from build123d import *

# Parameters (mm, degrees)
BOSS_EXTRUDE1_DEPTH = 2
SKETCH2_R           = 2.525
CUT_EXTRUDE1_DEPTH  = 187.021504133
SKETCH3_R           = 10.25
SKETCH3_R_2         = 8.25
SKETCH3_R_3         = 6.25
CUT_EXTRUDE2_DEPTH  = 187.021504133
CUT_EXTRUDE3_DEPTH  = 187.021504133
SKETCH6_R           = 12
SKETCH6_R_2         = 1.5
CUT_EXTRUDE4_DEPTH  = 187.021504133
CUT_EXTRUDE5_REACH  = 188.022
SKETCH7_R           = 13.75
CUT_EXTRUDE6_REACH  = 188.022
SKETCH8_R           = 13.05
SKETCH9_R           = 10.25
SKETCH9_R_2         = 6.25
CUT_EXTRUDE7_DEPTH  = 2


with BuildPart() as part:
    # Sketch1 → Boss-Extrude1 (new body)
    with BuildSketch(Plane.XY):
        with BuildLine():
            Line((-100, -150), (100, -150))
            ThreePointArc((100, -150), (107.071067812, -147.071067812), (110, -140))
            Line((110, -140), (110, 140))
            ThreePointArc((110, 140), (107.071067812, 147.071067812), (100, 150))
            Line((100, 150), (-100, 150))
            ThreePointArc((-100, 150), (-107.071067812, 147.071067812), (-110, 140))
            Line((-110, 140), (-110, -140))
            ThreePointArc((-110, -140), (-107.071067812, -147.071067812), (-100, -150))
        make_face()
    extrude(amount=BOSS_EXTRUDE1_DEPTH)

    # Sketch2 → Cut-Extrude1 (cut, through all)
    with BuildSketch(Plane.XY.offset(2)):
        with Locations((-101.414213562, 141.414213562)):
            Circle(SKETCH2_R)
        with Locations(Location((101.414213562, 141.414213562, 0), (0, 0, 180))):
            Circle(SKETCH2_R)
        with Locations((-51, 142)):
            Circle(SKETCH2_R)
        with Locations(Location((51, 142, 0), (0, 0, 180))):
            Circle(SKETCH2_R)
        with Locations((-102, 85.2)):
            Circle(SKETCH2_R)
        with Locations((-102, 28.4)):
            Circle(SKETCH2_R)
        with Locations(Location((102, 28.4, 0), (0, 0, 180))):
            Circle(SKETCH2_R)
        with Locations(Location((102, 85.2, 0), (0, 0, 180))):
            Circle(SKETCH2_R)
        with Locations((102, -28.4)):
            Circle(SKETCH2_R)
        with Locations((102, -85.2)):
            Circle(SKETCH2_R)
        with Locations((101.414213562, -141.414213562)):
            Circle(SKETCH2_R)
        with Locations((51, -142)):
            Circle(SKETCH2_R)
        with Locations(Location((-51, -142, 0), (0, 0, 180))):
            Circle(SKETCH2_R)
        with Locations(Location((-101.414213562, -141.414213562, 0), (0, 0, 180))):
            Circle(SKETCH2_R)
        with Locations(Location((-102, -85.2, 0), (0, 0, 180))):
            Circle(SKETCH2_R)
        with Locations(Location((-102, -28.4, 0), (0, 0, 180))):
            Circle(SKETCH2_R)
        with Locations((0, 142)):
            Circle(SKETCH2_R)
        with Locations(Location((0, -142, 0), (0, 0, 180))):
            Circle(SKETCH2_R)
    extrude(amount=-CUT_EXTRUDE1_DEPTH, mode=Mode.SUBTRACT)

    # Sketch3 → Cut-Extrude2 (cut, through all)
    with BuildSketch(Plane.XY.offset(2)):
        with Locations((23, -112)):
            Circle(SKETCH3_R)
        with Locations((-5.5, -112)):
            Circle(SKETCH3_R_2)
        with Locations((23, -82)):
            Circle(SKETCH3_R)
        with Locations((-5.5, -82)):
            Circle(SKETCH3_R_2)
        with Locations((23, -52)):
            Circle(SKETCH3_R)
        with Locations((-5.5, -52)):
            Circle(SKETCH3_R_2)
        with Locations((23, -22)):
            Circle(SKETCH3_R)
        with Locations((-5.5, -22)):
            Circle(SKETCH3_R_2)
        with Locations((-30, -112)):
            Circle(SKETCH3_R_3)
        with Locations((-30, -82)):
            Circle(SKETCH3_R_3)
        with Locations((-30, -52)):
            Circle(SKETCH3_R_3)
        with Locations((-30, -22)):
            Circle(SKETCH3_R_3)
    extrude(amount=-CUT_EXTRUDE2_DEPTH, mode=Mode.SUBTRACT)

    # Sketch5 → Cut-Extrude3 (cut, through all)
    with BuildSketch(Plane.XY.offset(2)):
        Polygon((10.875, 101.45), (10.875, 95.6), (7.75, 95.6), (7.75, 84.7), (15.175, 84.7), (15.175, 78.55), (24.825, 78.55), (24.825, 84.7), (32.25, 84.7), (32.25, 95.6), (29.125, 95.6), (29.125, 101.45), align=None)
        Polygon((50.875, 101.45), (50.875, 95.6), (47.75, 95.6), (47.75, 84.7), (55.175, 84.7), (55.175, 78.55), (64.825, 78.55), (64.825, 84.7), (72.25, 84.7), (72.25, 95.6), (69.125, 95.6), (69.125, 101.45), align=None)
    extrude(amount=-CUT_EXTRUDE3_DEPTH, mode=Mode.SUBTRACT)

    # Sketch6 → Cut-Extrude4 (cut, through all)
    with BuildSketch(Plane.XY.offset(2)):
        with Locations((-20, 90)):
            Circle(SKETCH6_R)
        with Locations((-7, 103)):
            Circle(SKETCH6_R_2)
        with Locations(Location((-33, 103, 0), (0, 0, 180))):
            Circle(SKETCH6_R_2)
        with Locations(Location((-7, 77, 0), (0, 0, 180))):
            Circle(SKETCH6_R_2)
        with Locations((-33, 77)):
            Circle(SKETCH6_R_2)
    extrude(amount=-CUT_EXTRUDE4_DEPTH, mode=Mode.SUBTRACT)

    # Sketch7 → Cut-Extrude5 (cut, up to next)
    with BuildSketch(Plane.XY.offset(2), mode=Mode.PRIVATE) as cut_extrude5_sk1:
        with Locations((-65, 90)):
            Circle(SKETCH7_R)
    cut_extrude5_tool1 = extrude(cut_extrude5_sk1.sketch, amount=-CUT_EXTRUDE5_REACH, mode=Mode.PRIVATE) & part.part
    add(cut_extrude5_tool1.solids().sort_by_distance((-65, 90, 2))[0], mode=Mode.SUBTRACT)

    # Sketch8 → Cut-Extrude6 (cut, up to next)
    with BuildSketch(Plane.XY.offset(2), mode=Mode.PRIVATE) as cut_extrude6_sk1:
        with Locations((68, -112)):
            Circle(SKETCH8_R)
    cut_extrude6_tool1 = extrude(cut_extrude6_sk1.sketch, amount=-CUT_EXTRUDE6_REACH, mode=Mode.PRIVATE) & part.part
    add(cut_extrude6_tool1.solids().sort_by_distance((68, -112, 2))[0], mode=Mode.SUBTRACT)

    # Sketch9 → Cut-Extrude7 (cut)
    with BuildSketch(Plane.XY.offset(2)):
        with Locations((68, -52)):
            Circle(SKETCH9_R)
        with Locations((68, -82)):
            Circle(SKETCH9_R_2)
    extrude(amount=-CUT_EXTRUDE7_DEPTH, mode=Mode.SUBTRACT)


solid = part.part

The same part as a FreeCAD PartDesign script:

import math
import FreeCAD as App
import Part
import Sketcher
Q = App.Units.Quantity


def add_polygon(sketch, points):
    """Adds a closed chain of lines whose ends are joined by coincident constraints."""
    first, n = sketch.GeometryCount, len(points)
    for a, b in zip(points, points[1:] + points[:1]):
        sketch.addGeometry(Part.LineSegment(App.Vector(*a, 0), App.Vector(*b, 0)), False)
    for i in range(n):
        sketch.addConstraint(Sketcher.Constraint("Coincident", first + i, 2, first + (i + 1) % n, 1))

doc = App.newDocument("Part")
body = doc.addObject("PartDesign::Body", "Body")

# Sketch on XY plane
sketch1 = body.newObject("Sketcher::SketchObject", "Sketch")
sketch1.AttachmentSupport = (doc.getObject("XY_Plane"), [""])
sketch1.MapMode = "FlatFace"
sketch1.addGeometry(Part.LineSegment(App.Vector(-100, -150, 0), App.Vector(100, -150, 0)), False)
sketch1.addGeometry(Part.ArcOfCircle(Part.Circle(App.Vector(100, -140, 0), App.Vector(0, 0, 1), 10), math.radians(-90), math.radians(0)), False)
sketch1.addGeometry(Part.LineSegment(App.Vector(110, -140, 0), App.Vector(110, 140, 0)), False)
sketch1.addGeometry(Part.ArcOfCircle(Part.Circle(App.Vector(100, 140, 0), App.Vector(0, 0, 1), 10), math.radians(0), math.radians(90)), False)
sketch1.addGeometry(Part.LineSegment(App.Vector(100, 150, 0), App.Vector(-100, 150, 0)), False)
sketch1.addGeometry(Part.ArcOfCircle(Part.Circle(App.Vector(-100, 140, 0), App.Vector(0, 0, 1), 10), math.radians(90), math.radians(180)), False)
sketch1.addGeometry(Part.LineSegment(App.Vector(-110, 140, 0), App.Vector(-110, -140, 0)), False)
sketch1.addGeometry(Part.ArcOfCircle(Part.Circle(App.Vector(-100, -140, 0), App.Vector(0, 0, 1), 10), math.radians(180), math.radians(270)), False)
sketch1.addConstraint(Sketcher.Constraint("Tangent", 0, 2, 1, 1))
sketch1.addConstraint(Sketcher.Constraint("Tangent", 1, 2, 2, 1))
sketch1.addConstraint(Sketcher.Constraint("Tangent", 2, 2, 3, 1))
sketch1.addConstraint(Sketcher.Constraint("Tangent", 3, 2, 4, 1))
sketch1.addConstraint(Sketcher.Constraint("Tangent", 4, 2, 5, 1))
sketch1.addConstraint(Sketcher.Constraint("Tangent", 5, 2, 6, 1))
sketch1.addConstraint(Sketcher.Constraint("Tangent", 6, 2, 7, 1))
sketch1.addConstraint(Sketcher.Constraint("Tangent", 7, 2, 0, 1))
sketch1.addConstraint(Sketcher.Constraint("Horizontal", 0))
sketch1.addConstraint(Sketcher.Constraint("Vertical", 2))
sketch1.addConstraint(Sketcher.Constraint("Horizontal", 4))
sketch1.addConstraint(Sketcher.Constraint("Vertical", 6))
sketch1.addConstraint(Sketcher.Constraint("Equal", 1, 3))
sketch1.addConstraint(Sketcher.Constraint("Equal", 3, 5))
sketch1.addConstraint(Sketcher.Constraint("Equal", 5, 7))
sketch1.addConstraint(Sketcher.Constraint("Symmetric", 1, 3, 5, 3, -1, 1))
sketch1.addConstraint(Sketcher.Constraint("Radius", 1, Q("10 mm")))
sketch1.addConstraint(Sketcher.Constraint("DistanceX", 0, 1, 0, 2, Q("200 mm")))
sketch1.addConstraint(Sketcher.Constraint("DistanceY", 2, 1, 2, 2, Q("280 mm")))
pad1 = body.newObject("PartDesign::Pad", "Pad")
pad1.Profile = sketch1
pad1.Length = 2

# Sketch on XY plane
sketch2 = body.newObject("Sketcher::SketchObject", "Sketch001")
sketch2.AttachmentSupport = (doc.getObject("XY_Plane"), [""])
sketch2.MapMode = "FlatFace"
sketch2.AttachmentOffset = App.Placement(App.Vector(0, 0, 2), App.Rotation())
sketch2.addGeometry(Part.Circle(App.Vector(-101.4, 141.4, 0), App.Vector(0, 0, 1), 2.5), False)
sketch2.addGeometry(Part.Circle(App.Vector(101.4, 141.4, 0), App.Vector(0, 0, 1), 2.5), False)
sketch2.addGeometry(Part.Circle(App.Vector(-51, 142, 0), App.Vector(0, 0, 1), 2.5), False)
sketch2.addGeometry(Part.Circle(App.Vector(51, 142, 0), App.Vector(0, 0, 1), 2.5), False)
sketch2.addGeometry(Part.Circle(App.Vector(-102, 85.2, 0), App.Vector(0, 0, 1), 2.5), False)
sketch2.addGeometry(Part.Circle(App.Vector(-102, 28.4, 0), App.Vector(0, 0, 1), 2.5), False)
sketch2.addGeometry(Part.Circle(App.Vector(102, 28.4, 0), App.Vector(0, 0, 1), 2.5), False)
sketch2.addGeometry(Part.Circle(App.Vector(102, 85.2, 0), App.Vector(0, 0, 1), 2.5), False)
sketch2.addGeometry(Part.Circle(App.Vector(102, -28.4, 0), App.Vector(0, 0, 1), 2.5), False)
sketch2.addGeometry(Part.Circle(App.Vector(102, -85.2, 0), App.Vector(0, 0, 1), 2.5), False)
sketch2.addGeometry(Part.Circle(App.Vector(101.4, -141.4, 0), App.Vector(0, 0, 1), 2.5), False)
sketch2.addGeometry(Part.Circle(App.Vector(51, -142, 0), App.Vector(0, 0, 1), 2.5), False)
sketch2.addGeometry(Part.Circle(App.Vector(-51, -142, 0), App.Vector(0, 0, 1), 2.5), False)
sketch2.addGeometry(Part.Circle(App.Vector(-101.4, -141.4, 0), App.Vector(0, 0, 1), 2.5), False)
sketch2.addGeometry(Part.Circle(App.Vector(-102, -85.2, 0), App.Vector(0, 0, 1), 2.5), False)
sketch2.addGeometry(Part.Circle(App.Vector(-102, -28.4, 0), App.Vector(0, 0, 1), 2.5), False)
sketch2.addGeometry(Part.Circle(App.Vector(0, 142, 0), App.Vector(0, 0, 1), 2.5), False)
sketch2.addGeometry(Part.Circle(App.Vector(0, -142, 0), App.Vector(0, 0, 1), 2.5), False)
sketch2.addConstraint(Sketcher.Constraint("Equal", 0, 1))
sketch2.addConstraint(Sketcher.Constraint("Equal", 1, 2))
sketch2.addConstraint(Sketcher.Constraint("Equal", 2, 3))
sketch2.addConstraint(Sketcher.Constraint("Equal", 3, 4))
sketch2.addConstraint(Sketcher.Constraint("Equal", 4, 5))
sketch2.addConstraint(Sketcher.Constraint("Equal", 5, 6))
sketch2.addConstraint(Sketcher.Constraint("Equal", 6, 7))
sketch2.addConstraint(Sketcher.Constraint("Equal", 7, 8))
sketch2.addConstraint(Sketcher.Constraint("Equal", 8, 9))
sketch2.addConstraint(Sketcher.Constraint("Equal", 9, 10))
sketch2.addConstraint(Sketcher.Constraint("Equal", 10, 11))
sketch2.addConstraint(Sketcher.Constraint("Equal", 11, 12))
sketch2.addConstraint(Sketcher.Constraint("Equal", 12, 13))
sketch2.addConstraint(Sketcher.Constraint("Equal", 13, 14))
sketch2.addConstraint(Sketcher.Constraint("Equal", 14, 15))
sketch2.addConstraint(Sketcher.Constraint("Equal", 15, 16))
sketch2.addConstraint(Sketcher.Constraint("Equal", 16, 17))
sketch2.addConstraint(Sketcher.Constraint("Symmetric", 5, 3, 8, 3, -1, 1))
sketch2.addConstraint(Sketcher.Constraint("Symmetric", 4, 3, 9, 3, -1, 1))
sketch2.addConstraint(Sketcher.Constraint("Symmetric", 0, 3, 10, 3, -1, 1))
sketch2.addConstraint(Sketcher.Constraint("Symmetric", 2, 3, 11, 3, -1, 1))
sketch2.addConstraint(Sketcher.Constraint("Symmetric", 3, 3, 12, 3, -1, 1))
sketch2.addConstraint(Sketcher.Constraint("Symmetric", 1, 3, 13, 3, -1, 1))
sketch2.addConstraint(Sketcher.Constraint("Symmetric", 7, 3, 14, 3, -1, 1))
sketch2.addConstraint(Sketcher.Constraint("Symmetric", 6, 3, 15, 3, -1, 1))
sketch2.addConstraint(Sketcher.Constraint("Symmetric", 16, 3, 17, 3, -1, 1))
sketch2.addConstraint(Sketcher.Constraint("Symmetric", 0, 3, 1, 3, -2))
sketch2.addConstraint(Sketcher.Constraint("Symmetric", 2, 3, 3, 3, -2))
sketch2.addConstraint(Sketcher.Constraint("Symmetric", 5, 3, 6, 3, -2))
sketch2.addConstraint(Sketcher.Constraint("Symmetric", 4, 3, 7, 3, -2))
sketch2.addConstraint(Sketcher.Constraint("PointOnObject", 16, 3, -2))
sketch2.addConstraint(Sketcher.Constraint("Horizontal", 3, 3, 16, 3))
sketch2.addConstraint(Sketcher.Constraint("Vertical", 4, 3, 5, 3))
sketch2.addConstraint(Sketcher.Constraint("Diameter", 0, Q("5.05 mm")))
sketch2.addConstraint(Sketcher.Constraint("DistanceX", 2, 3, -1, 1, Q("51 mm")))
sketch2.addConstraint(Sketcher.Constraint("DistanceY", -1, 1, 2, 3, Q("142 mm")))
sketch2.addConstraint(Sketcher.Constraint("DistanceX", 4, 3, -1, 1, Q("102 mm")))
sketch2.addConstraint(Sketcher.Constraint("DistanceY", -1, 1, 4, 3, Q("85.2 mm")))
sketch2.addConstraint(Sketcher.Constraint("DistanceY", -1, 1, 5, 3, Q("28.4 mm")))
sketch2.addConstraint(Sketcher.Constraint("DistanceX", 0, 3, -1, 1, Q("101.414214 mm")))
sketch2.addConstraint(Sketcher.Constraint("DistanceY", -1, 1, 0, 3, Q("141.414214 mm")))
pocket1 = body.newObject("PartDesign::Pocket", "Pocket")
pocket1.Profile = sketch2
pocket1.Type = "ThroughAll"

# Sketch on XY plane
sketch3 = body.newObject("Sketcher::SketchObject", "Sketch002")
sketch3.AttachmentSupport = (doc.getObject("XY_Plane"), [""])
sketch3.MapMode = "FlatFace"
sketch3.AttachmentOffset = App.Placement(App.Vector(0, 0, 2), App.Rotation())
sketch3.addGeometry(Part.Circle(App.Vector(23, -112, 0), App.Vector(0, 0, 1), 10), False)
sketch3.addGeometry(Part.Circle(App.Vector(-6, -112, 0), App.Vector(0, 0, 1), 8), False)
sketch3.addGeometry(Part.Circle(App.Vector(23, -82, 0), App.Vector(0, 0, 1), 10), False)
sketch3.addGeometry(Part.Circle(App.Vector(-6, -82, 0), App.Vector(0, 0, 1), 8), False)
sketch3.addGeometry(Part.Circle(App.Vector(23, -52, 0), App.Vector(0, 0, 1), 10), False)
sketch3.addGeometry(Part.Circle(App.Vector(-6, -52, 0), App.Vector(0, 0, 1), 8), False)
sketch3.addGeometry(Part.Circle(App.Vector(23, -22, 0), App.Vector(0, 0, 1), 10), False)
sketch3.addGeometry(Part.Circle(App.Vector(-6, -22, 0), App.Vector(0, 0, 1), 8), False)
sketch3.addGeometry(Part.Circle(App.Vector(-30, -112, 0), App.Vector(0, 0, 1), 6), False)
sketch3.addGeometry(Part.Circle(App.Vector(-30, -82, 0), App.Vector(0, 0, 1), 6), False)
sketch3.addGeometry(Part.Circle(App.Vector(-30, -52, 0), App.Vector(0, 0, 1), 6), False)
sketch3.addGeometry(Part.Circle(App.Vector(-30, -22, 0), App.Vector(0, 0, 1), 6), False)
sketch3.addConstraint(Sketcher.Constraint("Equal", 0, 2))
sketch3.addConstraint(Sketcher.Constraint("Equal", 1, 3))
sketch3.addConstraint(Sketcher.Constraint("Equal", 2, 4))
sketch3.addConstraint(Sketcher.Constraint("Equal", 3, 5))
sketch3.addConstraint(Sketcher.Constraint("Equal", 4, 6))
sketch3.addConstraint(Sketcher.Constraint("Equal", 5, 7))
sketch3.addConstraint(Sketcher.Constraint("Equal", 8, 9))
sketch3.addConstraint(Sketcher.Constraint("Equal", 9, 10))
sketch3.addConstraint(Sketcher.Constraint("Equal", 10, 11))
sketch3.addConstraint(Sketcher.Constraint("Horizontal", 0, 3, 1, 3))
sketch3.addConstraint(Sketcher.Constraint("Horizontal", 2, 3, 3, 3))
sketch3.addConstraint(Sketcher.Constraint("Horizontal", 4, 3, 5, 3))
sketch3.addConstraint(Sketcher.Constraint("Horizontal", 6, 3, 7, 3))
sketch3.addConstraint(Sketcher.Constraint("Horizontal", 1, 3, 8, 3))
sketch3.addConstraint(Sketcher.Constraint("Horizontal", 3, 3, 9, 3))
sketch3.addConstraint(Sketcher.Constraint("Horizontal", 5, 3, 10, 3))
sketch3.addConstraint(Sketcher.Constraint("Horizontal", 7, 3, 11, 3))
sketch3.addConstraint(Sketcher.Constraint("Vertical", 0, 3, 2, 3))
sketch3.addConstraint(Sketcher.Constraint("Vertical", 1, 3, 3, 3))
sketch3.addConstraint(Sketcher.Constraint("Vertical", 2, 3, 4, 3))
sketch3.addConstraint(Sketcher.Constraint("Vertical", 3, 3, 5, 3))
sketch3.addConstraint(Sketcher.Constraint("Vertical", 4, 3, 6, 3))
sketch3.addConstraint(Sketcher.Constraint("Vertical", 5, 3, 7, 3))
sketch3.addConstraint(Sketcher.Constraint("Vertical", 8, 3, 9, 3))
sketch3.addConstraint(Sketcher.Constraint("Vertical", 9, 3, 10, 3))
sketch3.addConstraint(Sketcher.Constraint("Vertical", 10, 3, 11, 3))
sketch3.addConstraint(Sketcher.Constraint("Diameter", 0, Q("20.5 mm")))
sketch3.addConstraint(Sketcher.Constraint("Diameter", 1, Q("16.5 mm")))
sketch3.addConstraint(Sketcher.Constraint("Diameter", 8, Q("12.5 mm")))
sketch3.addConstraint(Sketcher.Constraint("DistanceX", -1, 1, 0, 3, Q("23 mm")))
sketch3.addConstraint(Sketcher.Constraint("DistanceY", 0, 3, -1, 1, Q("112 mm")))
sketch3.addConstraint(Sketcher.Constraint("DistanceY", 2, 3, -1, 1, Q("82 mm")))
sketch3.addConstraint(Sketcher.Constraint("DistanceY", 4, 3, -1, 1, Q("52 mm")))
sketch3.addConstraint(Sketcher.Constraint("DistanceY", 6, 3, -1, 1, Q("22 mm")))
sketch3.addConstraint(Sketcher.Constraint("DistanceX", 8, 3, -1, 1, Q("30 mm")))
sketch3.addConstraint(Sketcher.Constraint("DistanceX", 1, 3, -1, 1, Q("5.5 mm")))
pocket2 = body.newObject("PartDesign::Pocket", "Pocket001")
pocket2.Profile = sketch3
pocket2.Type = "ThroughAll"

# Sketch on XY plane
sketch4 = body.newObject("Sketcher::SketchObject", "Sketch003")
sketch4.AttachmentSupport = (doc.getObject("XY_Plane"), [""])
sketch4.MapMode = "FlatFace"
sketch4.AttachmentOffset = App.Placement(App.Vector(0, 0, 2), App.Rotation())
add_polygon(sketch4, [(10.9, 101.5), (10.9, 95.6), (7.8, 95.6), (7.8, 84.7), (15.2, 84.7), (15.2, 78.5), (24.8, 78.5), (24.8, 84.7), (32.2, 84.7), (32.2, 95.6), (29.1, 95.6), (29.1, 101.5)])  # lines 0-11
add_polygon(sketch4, [(50.9, 101.5), (50.9, 95.6), (47.8, 95.6), (47.8, 84.7), (55.2, 84.7), (55.2, 78.5), (64.8, 78.5), (64.8, 84.7), (72.2, 84.7), (72.2, 95.6), (69.1, 95.6), (69.1, 101.5)])  # lines 12-23
sketch4.addConstraint(Sketcher.Constraint("Vertical", 0))
sketch4.addConstraint(Sketcher.Constraint("Horizontal", 1))
sketch4.addConstraint(Sketcher.Constraint("Vertical", 2))
sketch4.addConstraint(Sketcher.Constraint("Horizontal", 3))
sketch4.addConstraint(Sketcher.Constraint("Vertical", 4))
sketch4.addConstraint(Sketcher.Constraint("Horizontal", 5))
sketch4.addConstraint(Sketcher.Constraint("Vertical", 6))
sketch4.addConstraint(Sketcher.Constraint("Horizontal", 7))
sketch4.addConstraint(Sketcher.Constraint("Vertical", 8))
sketch4.addConstraint(Sketcher.Constraint("Horizontal", 9))
sketch4.addConstraint(Sketcher.Constraint("Vertical", 10))
sketch4.addConstraint(Sketcher.Constraint("Horizontal", 11))
sketch4.addConstraint(Sketcher.Constraint("Vertical", 12))
sketch4.addConstraint(Sketcher.Constraint("Horizontal", 13))
sketch4.addConstraint(Sketcher.Constraint("Vertical", 14))
sketch4.addConstraint(Sketcher.Constraint("Horizontal", 15))
sketch4.addConstraint(Sketcher.Constraint("Vertical", 16))
sketch4.addConstraint(Sketcher.Constraint("Horizontal", 17))
sketch4.addConstraint(Sketcher.Constraint("Vertical", 18))
sketch4.addConstraint(Sketcher.Constraint("Horizontal", 19))
sketch4.addConstraint(Sketcher.Constraint("Vertical", 20))
sketch4.addConstraint(Sketcher.Constraint("Horizontal", 21))
sketch4.addConstraint(Sketcher.Constraint("Vertical", 22))
sketch4.addConstraint(Sketcher.Constraint("Horizontal", 23))
sketch4.addConstraint(Sketcher.Constraint("Horizontal", 3, 2, 6, 2))
sketch4.addConstraint(Sketcher.Constraint("Horizontal", 1, 2, 8, 2))
sketch4.addConstraint(Sketcher.Constraint("Horizontal", 9, 2, 12, 2))
sketch4.addConstraint(Sketcher.Constraint("Horizontal", 7, 2, 14, 2))
sketch4.addConstraint(Sketcher.Constraint("Horizontal", 5, 2, 16, 2))
sketch4.addConstraint(Sketcher.Constraint("Horizontal", 15, 2, 18, 2))
sketch4.addConstraint(Sketcher.Constraint("Horizontal", 13, 2, 20, 2))
sketch4.addConstraint(Sketcher.Constraint("Horizontal", 11, 2, 22, 2))
sketch4.addConstraint(Sketcher.Constraint("Equal", 3, 7))
sketch4.addConstraint(Sketcher.Constraint("Equal", 1, 9))
sketch4.addConstraint(Sketcher.Constraint("Equal", 9, 13))
sketch4.addConstraint(Sketcher.Constraint("Equal", 7, 15))
sketch4.addConstraint(Sketcher.Constraint("Equal", 5, 17))
sketch4.addConstraint(Sketcher.Constraint("Equal", 15, 19))
sketch4.addConstraint(Sketcher.Constraint("Equal", 13, 21))
sketch4.addConstraint(Sketcher.Constraint("DistanceY", 2, 2, 2, 1, Q("10.9 mm")))
sketch4.addConstraint(Sketcher.Constraint("DistanceX", 5, 1, 5, 2, Q("9.65 mm")))
sketch4.addConstraint(Sketcher.Constraint("DistanceX", 11, 2, 11, 1, Q("18.25 mm")))
sketch4.addConstraint(Sketcher.Constraint("DistanceY", 0, 2, 0, 1, Q("5.85 mm")))
sketch4.addConstraint(Sketcher.Constraint("DistanceY", 4, 2, 4, 1, Q("6.15 mm")))
sketch4.addConstraint(Sketcher.Constraint("DistanceY", -1, 1, 0, 2, Q("95.6 mm")))
sketch4.addConstraint(Sketcher.Constraint("DistanceX", 8, 2, 13, 2, Q("15.5 mm")))
sketch4.addConstraint(Sketcher.Constraint("DistanceX", 1, 2, 1, 1, Q("3.125 mm")))
sketch4.addConstraint(Sketcher.Constraint("DistanceX", -1, 1, 1, 2, Q("7.75 mm")))
pocket3 = body.newObject("PartDesign::Pocket", "Pocket002")
pocket3.Profile = sketch4
pocket3.Type = "ThroughAll"

# Sketch on XY plane
sketch5 = body.newObject("Sketcher::SketchObject", "Sketch004")
sketch5.AttachmentSupport = (doc.getObject("XY_Plane"), [""])
sketch5.MapMode = "FlatFace"
sketch5.AttachmentOffset = App.Placement(App.Vector(0, 0, 2), App.Rotation())
sketch5.addGeometry(Part.Circle(App.Vector(-20, 90, 0), App.Vector(0, 0, 1), 12), False)
sketch5.addGeometry(Part.Circle(App.Vector(-7, 103, 0), App.Vector(0, 0, 1), 1.5), False)
sketch5.addGeometry(Part.Circle(App.Vector(-33, 103, 0), App.Vector(0, 0, 1), 1.5), False)
sketch5.addGeometry(Part.Circle(App.Vector(-7, 77, 0), App.Vector(0, 0, 1), 1.5), False)
sketch5.addGeometry(Part.Circle(App.Vector(-33, 77, 0), App.Vector(0, 0, 1), 1.5), False)
sketch5.addConstraint(Sketcher.Constraint("Equal", 1, 2))
sketch5.addConstraint(Sketcher.Constraint("Equal", 2, 3))
sketch5.addConstraint(Sketcher.Constraint("Equal", 3, 4))
sketch5.addConstraint(Sketcher.Constraint("Horizontal", 1, 3, 2, 3))
sketch5.addConstraint(Sketcher.Constraint("Horizontal", 3, 3, 4, 3))
sketch5.addConstraint(Sketcher.Constraint("Vertical", 1, 3, 3, 3))
sketch5.addConstraint(Sketcher.Constraint("Vertical", 2, 3, 4, 3))
sketch5.addConstraint(Sketcher.Constraint("Diameter", 0, Q("24 mm")))
sketch5.addConstraint(Sketcher.Constraint("Diameter", 1, Q("3 mm")))
sketch5.addConstraint(Sketcher.Constraint("DistanceX", 0, 3, -1, 1, Q("20 mm")))
sketch5.addConstraint(Sketcher.Constraint("DistanceY", -1, 1, 0, 3, Q("90 mm")))
sketch5.addConstraint(Sketcher.Constraint("DistanceX", 1, 3, -1, 1, Q("7 mm")))
sketch5.addConstraint(Sketcher.Constraint("DistanceY", -1, 1, 1, 3, Q("103 mm")))
sketch5.addConstraint(Sketcher.Constraint("DistanceX", 2, 3, -1, 1, Q("33 mm")))
sketch5.addConstraint(Sketcher.Constraint("DistanceY", -1, 1, 3, 3, Q("77 mm")))
pocket4 = body.newObject("PartDesign::Pocket", "Pocket003")
pocket4.Profile = sketch5
pocket4.Type = "ThroughAll"

# Sketch on XY plane
sketch6 = body.newObject("Sketcher::SketchObject", "Sketch005")
sketch6.AttachmentSupport = (doc.getObject("XY_Plane"), [""])
sketch6.MapMode = "FlatFace"
sketch6.AttachmentOffset = App.Placement(App.Vector(0, 0, 2), App.Rotation())
sketch6.addGeometry(Part.Circle(App.Vector(-65, 90, 0), App.Vector(0, 0, 1), 14), False)
sketch6.addConstraint(Sketcher.Constraint("Diameter", 0, Q("27.5 mm")))
sketch6.addConstraint(Sketcher.Constraint("DistanceX", 0, 3, -1, 1, Q("65 mm")))
sketch6.addConstraint(Sketcher.Constraint("DistanceY", -1, 1, 0, 3, Q("90 mm")))
pocket5 = body.newObject("PartDesign::Pocket", "Pocket004")
pocket5.Profile = sketch6
pocket5.Type = "UpToFirst"

# Sketch on XY plane
sketch7 = body.newObject("Sketcher::SketchObject", "Sketch006")
sketch7.AttachmentSupport = (doc.getObject("XY_Plane"), [""])
sketch7.MapMode = "FlatFace"
sketch7.AttachmentOffset = App.Placement(App.Vector(0, 0, 2), App.Rotation())
sketch7.addGeometry(Part.Circle(App.Vector(68, -112, 0), App.Vector(0, 0, 1), 13), False)
sketch7.addConstraint(Sketcher.Constraint("Diameter", 0, Q("26.1 mm")))
sketch7.addConstraint(Sketcher.Constraint("DistanceX", -1, 1, 0, 3, Q("68 mm")))
sketch7.addConstraint(Sketcher.Constraint("DistanceY", 0, 3, -1, 1, Q("112 mm")))
pocket6 = body.newObject("PartDesign::Pocket", "Pocket005")
pocket6.Profile = sketch7
pocket6.Type = "UpToFirst"

# Sketch on XY plane
sketch8 = body.newObject("Sketcher::SketchObject", "Sketch007")
sketch8.AttachmentSupport = (doc.getObject("XY_Plane"), [""])
sketch8.MapMode = "FlatFace"
sketch8.AttachmentOffset = App.Placement(App.Vector(0, 0, 2), App.Rotation())
sketch8.addGeometry(Part.Circle(App.Vector(68, -52, 0), App.Vector(0, 0, 1), 10), False)
sketch8.addGeometry(Part.Circle(App.Vector(68, -82, 0), App.Vector(0, 0, 1), 6), False)
sketch8.addConstraint(Sketcher.Constraint("Vertical", 0, 3, 1, 3))
sketch8.addConstraint(Sketcher.Constraint("Diameter", 0, Q("20.5 mm")))
sketch8.addConstraint(Sketcher.Constraint("Diameter", 1, Q("12.5 mm")))
sketch8.addConstraint(Sketcher.Constraint("DistanceX", -1, 1, 0, 3, Q("68 mm")))
sketch8.addConstraint(Sketcher.Constraint("DistanceY", 0, 3, -1, 1, Q("52 mm")))
sketch8.addConstraint(Sketcher.Constraint("DistanceY", 1, 3, -1, 1, Q("82 mm")))
pocket7 = body.newObject("PartDesign::Pocket", "Pocket006")
pocket7.Profile = sketch8
pocket7.Length = 2

doc.recompute()
